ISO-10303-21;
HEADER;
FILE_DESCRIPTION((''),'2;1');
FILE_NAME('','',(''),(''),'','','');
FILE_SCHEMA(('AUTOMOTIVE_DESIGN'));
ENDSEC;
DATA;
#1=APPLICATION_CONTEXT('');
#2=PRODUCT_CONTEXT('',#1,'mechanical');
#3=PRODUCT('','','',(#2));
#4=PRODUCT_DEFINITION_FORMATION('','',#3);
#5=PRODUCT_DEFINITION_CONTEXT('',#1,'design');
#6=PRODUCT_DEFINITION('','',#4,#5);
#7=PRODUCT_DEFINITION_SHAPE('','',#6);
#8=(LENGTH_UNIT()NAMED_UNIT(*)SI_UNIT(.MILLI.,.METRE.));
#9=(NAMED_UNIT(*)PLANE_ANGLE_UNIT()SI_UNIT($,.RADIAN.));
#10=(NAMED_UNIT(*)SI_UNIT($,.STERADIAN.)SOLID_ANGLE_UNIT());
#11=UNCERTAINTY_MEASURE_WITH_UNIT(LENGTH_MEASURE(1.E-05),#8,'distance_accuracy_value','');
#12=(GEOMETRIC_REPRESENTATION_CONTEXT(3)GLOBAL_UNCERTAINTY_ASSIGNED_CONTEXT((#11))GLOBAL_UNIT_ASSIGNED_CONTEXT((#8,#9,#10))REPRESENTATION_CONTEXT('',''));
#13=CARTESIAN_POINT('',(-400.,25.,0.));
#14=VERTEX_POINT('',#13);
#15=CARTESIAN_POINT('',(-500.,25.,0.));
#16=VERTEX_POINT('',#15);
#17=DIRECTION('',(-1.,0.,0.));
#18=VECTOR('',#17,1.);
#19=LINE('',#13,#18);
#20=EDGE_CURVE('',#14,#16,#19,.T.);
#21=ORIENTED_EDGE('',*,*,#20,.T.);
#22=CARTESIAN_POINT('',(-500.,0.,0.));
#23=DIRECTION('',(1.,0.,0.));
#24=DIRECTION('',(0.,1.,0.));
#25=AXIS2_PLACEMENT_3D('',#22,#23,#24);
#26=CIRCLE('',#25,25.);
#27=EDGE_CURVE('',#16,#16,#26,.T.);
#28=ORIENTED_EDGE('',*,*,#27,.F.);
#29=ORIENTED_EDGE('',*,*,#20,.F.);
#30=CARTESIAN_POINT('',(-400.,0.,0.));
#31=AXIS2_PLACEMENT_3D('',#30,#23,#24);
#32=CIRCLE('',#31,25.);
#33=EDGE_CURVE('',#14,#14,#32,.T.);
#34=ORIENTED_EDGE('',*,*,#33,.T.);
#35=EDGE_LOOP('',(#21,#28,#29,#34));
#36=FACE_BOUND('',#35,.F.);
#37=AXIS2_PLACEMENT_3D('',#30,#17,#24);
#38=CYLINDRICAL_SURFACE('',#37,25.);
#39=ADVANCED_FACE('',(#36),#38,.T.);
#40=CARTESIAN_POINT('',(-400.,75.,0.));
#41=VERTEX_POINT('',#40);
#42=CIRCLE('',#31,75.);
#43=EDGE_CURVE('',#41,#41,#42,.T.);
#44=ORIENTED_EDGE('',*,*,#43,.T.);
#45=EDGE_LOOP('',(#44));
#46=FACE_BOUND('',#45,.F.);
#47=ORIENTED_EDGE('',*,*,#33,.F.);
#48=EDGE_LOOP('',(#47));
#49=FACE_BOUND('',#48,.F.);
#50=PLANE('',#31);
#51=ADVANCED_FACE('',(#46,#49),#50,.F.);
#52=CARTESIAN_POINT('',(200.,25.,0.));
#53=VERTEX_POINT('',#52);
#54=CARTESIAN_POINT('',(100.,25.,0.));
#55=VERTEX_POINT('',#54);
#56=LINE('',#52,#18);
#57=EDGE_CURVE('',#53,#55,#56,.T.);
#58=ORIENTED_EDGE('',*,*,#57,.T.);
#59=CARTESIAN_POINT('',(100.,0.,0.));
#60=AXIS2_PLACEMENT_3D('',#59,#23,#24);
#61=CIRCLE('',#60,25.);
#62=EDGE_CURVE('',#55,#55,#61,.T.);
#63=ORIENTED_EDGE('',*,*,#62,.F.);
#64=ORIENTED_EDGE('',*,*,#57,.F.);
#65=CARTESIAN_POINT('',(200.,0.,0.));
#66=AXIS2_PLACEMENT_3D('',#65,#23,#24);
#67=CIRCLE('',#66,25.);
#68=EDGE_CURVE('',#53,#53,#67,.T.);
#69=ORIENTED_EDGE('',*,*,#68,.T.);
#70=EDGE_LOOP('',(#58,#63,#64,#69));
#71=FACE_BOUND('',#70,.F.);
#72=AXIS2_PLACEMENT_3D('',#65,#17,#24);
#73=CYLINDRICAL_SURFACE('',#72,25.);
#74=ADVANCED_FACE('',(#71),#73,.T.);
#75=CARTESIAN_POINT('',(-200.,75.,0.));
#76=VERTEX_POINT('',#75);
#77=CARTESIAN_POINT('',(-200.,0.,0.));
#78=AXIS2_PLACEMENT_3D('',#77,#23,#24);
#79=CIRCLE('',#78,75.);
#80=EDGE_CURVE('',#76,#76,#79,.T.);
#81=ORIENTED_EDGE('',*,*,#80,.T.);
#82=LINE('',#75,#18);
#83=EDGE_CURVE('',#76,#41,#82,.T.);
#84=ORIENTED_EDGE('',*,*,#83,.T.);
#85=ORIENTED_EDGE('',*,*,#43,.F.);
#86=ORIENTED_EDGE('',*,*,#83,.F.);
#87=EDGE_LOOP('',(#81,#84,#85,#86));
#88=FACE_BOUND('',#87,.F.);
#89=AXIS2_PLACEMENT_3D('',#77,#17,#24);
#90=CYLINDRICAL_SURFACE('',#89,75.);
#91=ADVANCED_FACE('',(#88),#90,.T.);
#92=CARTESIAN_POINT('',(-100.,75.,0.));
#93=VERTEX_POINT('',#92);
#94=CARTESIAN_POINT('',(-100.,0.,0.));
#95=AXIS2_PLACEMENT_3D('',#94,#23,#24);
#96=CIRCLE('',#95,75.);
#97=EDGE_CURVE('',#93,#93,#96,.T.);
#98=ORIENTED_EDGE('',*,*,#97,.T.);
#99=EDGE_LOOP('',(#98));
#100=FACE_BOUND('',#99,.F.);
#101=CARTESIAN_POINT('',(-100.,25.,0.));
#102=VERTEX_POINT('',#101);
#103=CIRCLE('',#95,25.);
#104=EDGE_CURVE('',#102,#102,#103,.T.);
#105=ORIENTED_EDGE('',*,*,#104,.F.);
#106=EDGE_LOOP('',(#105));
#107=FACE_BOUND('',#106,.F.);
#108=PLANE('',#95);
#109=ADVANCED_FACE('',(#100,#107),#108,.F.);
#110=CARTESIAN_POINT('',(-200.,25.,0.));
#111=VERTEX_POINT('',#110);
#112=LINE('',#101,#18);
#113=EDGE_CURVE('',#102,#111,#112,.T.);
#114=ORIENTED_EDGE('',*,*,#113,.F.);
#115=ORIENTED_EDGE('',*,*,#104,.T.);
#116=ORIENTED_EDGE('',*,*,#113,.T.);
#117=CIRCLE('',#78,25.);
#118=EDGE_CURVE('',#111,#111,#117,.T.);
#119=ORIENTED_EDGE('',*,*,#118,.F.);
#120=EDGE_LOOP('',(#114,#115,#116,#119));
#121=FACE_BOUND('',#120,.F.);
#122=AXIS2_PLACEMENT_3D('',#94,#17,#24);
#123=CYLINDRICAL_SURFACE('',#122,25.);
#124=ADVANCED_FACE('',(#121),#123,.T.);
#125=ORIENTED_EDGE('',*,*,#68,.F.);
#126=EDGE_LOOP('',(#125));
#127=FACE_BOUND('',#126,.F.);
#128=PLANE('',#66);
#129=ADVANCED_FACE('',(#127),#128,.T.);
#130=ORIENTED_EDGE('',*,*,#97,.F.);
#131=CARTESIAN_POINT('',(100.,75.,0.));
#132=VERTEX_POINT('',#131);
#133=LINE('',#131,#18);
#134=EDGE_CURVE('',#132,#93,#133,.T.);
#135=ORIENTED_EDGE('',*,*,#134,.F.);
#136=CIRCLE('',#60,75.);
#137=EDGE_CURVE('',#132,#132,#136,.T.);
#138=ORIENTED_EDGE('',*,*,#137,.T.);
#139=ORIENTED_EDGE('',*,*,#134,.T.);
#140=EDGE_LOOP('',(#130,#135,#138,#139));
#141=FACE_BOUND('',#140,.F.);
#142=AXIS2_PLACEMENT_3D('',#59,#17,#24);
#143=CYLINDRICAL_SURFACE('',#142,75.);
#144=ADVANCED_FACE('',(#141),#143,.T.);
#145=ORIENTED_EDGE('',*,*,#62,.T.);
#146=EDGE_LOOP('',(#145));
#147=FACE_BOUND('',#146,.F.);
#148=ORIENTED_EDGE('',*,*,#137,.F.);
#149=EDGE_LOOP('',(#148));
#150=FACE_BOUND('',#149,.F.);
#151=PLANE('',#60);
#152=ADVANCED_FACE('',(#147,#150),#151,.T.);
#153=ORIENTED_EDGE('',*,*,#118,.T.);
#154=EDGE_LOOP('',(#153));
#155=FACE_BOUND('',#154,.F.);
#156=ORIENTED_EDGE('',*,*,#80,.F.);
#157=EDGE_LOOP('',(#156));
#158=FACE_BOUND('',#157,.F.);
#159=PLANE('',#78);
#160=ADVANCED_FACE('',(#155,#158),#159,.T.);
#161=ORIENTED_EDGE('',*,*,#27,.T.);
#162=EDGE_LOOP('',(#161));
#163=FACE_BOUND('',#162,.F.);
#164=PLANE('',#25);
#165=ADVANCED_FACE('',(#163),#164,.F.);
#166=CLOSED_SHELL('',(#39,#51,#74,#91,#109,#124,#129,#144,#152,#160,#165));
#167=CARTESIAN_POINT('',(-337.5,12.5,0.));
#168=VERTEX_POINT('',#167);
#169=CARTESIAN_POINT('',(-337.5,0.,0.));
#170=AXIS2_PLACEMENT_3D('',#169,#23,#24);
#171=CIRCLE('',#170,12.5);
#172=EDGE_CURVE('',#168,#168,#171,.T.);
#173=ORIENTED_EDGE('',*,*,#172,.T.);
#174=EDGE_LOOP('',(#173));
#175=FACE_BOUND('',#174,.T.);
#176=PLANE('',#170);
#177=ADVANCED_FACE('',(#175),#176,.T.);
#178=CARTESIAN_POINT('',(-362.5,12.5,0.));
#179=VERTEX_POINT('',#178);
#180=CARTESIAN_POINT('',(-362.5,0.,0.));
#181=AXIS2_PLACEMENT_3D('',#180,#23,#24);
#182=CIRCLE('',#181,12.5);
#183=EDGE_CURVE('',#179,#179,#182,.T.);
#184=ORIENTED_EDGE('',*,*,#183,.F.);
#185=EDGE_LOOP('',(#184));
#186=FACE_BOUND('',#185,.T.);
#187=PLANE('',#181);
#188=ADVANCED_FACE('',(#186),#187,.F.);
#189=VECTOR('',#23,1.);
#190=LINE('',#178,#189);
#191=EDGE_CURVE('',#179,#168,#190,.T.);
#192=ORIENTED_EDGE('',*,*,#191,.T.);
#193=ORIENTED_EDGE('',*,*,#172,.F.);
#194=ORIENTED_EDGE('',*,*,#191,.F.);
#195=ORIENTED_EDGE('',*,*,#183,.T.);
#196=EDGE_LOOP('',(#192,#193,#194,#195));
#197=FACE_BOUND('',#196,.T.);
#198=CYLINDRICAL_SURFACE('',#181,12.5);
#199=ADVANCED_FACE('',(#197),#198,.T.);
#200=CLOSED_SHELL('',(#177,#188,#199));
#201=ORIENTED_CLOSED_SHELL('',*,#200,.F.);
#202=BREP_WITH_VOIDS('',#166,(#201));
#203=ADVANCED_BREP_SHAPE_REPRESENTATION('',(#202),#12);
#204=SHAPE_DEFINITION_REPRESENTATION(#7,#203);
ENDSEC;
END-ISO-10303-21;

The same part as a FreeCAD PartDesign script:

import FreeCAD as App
import Part
import Sketcher

V = App.Vector
Q = App.Units.Quantity

doc = App.newDocument("Part")
body = doc.addObject("PartDesign::Body", "Body")

# Sketch on XY plane
sketch1 = body.newObject("Sketcher::SketchObject", "Sketch")
sketch1.AttachmentSupport = (doc.getObject("XY_Plane"), [""])
sketch1.MapMode = "FlatFace"
sketch1.addGeometry([
    Part.LineSegment(V(100, 75, 0), V(-100, 75, 0)),  # 0
    Part.LineSegment(V(-100, 75, 0), V(-100, 25, 0)),  # 1
    Part.LineSegment(V(-100, 25, 0), V(-200, 25, 0)),  # 2
    Part.LineSegment(V(-200, 25, 0), V(-200, 75, 0)),  # 3
    Part.LineSegment(V(-200, 75, 0), V(-400, 75, 0)),  # 4
    Part.LineSegment(V(-400, 75, 0), V(-400, 25, 0)),  # 5
    Part.LineSegment(V(-400, 25, 0), V(-500, 25, 0)),  # 6
    Part.LineSegment(V(-500, 25, 0), V(-500, 0, 0)),  # 7
    Part.LineSegment(V(-500, 0, 0), V(-362, 0, 0)),  # 8
    Part.LineSegment(V(-362, 0, 0), V(-362, 12, 0)),  # 9
    Part.LineSegment(V(-362, 12, 0), V(-338, 12, 0)),  # 10
    Part.LineSegment(V(-338, 12, 0), V(-338, 0, 0)),  # 11
    Part.LineSegment(V(-338, 0, 0), V(200, 0, 0)),  # 12
    Part.LineSegment(V(200, 0, 0), V(200, 25, 0)),  # 13
    Part.LineSegment(V(200, 25, 0), V(100, 25, 0)),  # 14
    Part.LineSegment(V(100, 25, 0), V(100, 75, 0)),  # 15
], False)
sketch1.addConstraint([
    Sketcher.Constraint("Coincident", 0, 2, 1, 1),
    Sketcher.Constraint("Coincident", 1, 2, 2, 1),
    Sketcher.Constraint("Coincident", 2, 2, 3, 1),
    Sketcher.Constraint("Coincident", 3, 2, 4, 1),
    Sketcher.Constraint("Coincident", 4, 2, 5, 1),
    Sketcher.Constraint("Coincident", 5, 2, 6, 1),
    Sketcher.Constraint("Coincident", 6, 2, 7, 1),
    Sketcher.Constraint("Coincident", 7, 2, 8, 1),
    Sketcher.Constraint("Coincident", 8, 2, 9, 1),
    Sketcher.Constraint("Coincident", 9, 2, 10, 1),
    Sketcher.Constraint("Coincident", 10, 2, 11, 1),
    Sketcher.Constraint("Coincident", 11, 2, 12, 1),
    Sketcher.Constraint("Coincident", 12, 2, 13, 1),
    Sketcher.Constraint("Coincident", 13, 2, 14, 1),
    Sketcher.Constraint("Coincident", 14, 2, 15, 1),
    Sketcher.Constraint("Coincident", 15, 2, 0, 1),
    Sketcher.Constraint("Horizontal", 0),
    Sketcher.Constraint("Vertical", 1),
    Sketcher.Constraint("Horizontal", 2),
    Sketcher.Constraint("Vertical", 3),
    Sketcher.Constraint("Horizontal", 4),
    Sketcher.Constraint("Vertical", 5),
    Sketcher.Constraint("Horizontal", 6),
    Sketcher.Constraint("Vertical", 7),
    Sketcher.Constraint("Horizontal", 8),
    Sketcher.Constraint("Vertical", 9),
    Sketcher.Constraint("Horizontal", 10),
    Sketcher.Constraint("Vertical", 11),
    Sketcher.Constraint("Horizontal", 12),
    Sketcher.Constraint("Vertical", 13),
    Sketcher.Constraint("Horizontal", 14),
    Sketcher.Constraint("Vertical", 15),
    Sketcher.Constraint("Symmetric", 2, 2, 13, 2, -2),
    Sketcher.Constraint("PointOnObject", 7, 2, -1),
    Sketcher.Constraint("PointOnObject", 11, 2, -1),
    Sketcher.Constraint("Horizontal", 0, 2, 3, 2),
    Sketcher.Constraint("Horizontal", 2, 2, 5, 2),
    Sketcher.Constraint("Equal", 0, 4),
    Sketcher.Constraint("Equal", 2, 6),
    Sketcher.Constraint("Equal", 6, 14),
    Sketcher.Constraint("Equal", 10, 7),
    Sketcher.Constraint("DistanceX", 0, 2, 0, 1, Q("200 mm")),
    Sketcher.Constraint("DistanceX", 2, 2, 2, 1, Q("100 mm")),
    Sketcher.Constraint("DistanceX", 10, 1, 10, 2, Q("25 mm")),
    Sketcher.Constraint("DistanceY", 1, 2, 1, 1, Q("50 mm")),
    Sketcher.Constraint("DistanceX", 8, 1, 8, 2, Q("137.5 mm")),
    Sketcher.Constraint("DistanceY", 9, 1, 9, 2, Q("12.5 mm")),
])
revolution = body.newObject("PartDesign::Revolution", "Revolution")
revolution.Profile = sketch1
revolution.ReferenceAxis = (sketch1, ["H_Axis"])
revolution.Angle = 360

doc.recompute()
